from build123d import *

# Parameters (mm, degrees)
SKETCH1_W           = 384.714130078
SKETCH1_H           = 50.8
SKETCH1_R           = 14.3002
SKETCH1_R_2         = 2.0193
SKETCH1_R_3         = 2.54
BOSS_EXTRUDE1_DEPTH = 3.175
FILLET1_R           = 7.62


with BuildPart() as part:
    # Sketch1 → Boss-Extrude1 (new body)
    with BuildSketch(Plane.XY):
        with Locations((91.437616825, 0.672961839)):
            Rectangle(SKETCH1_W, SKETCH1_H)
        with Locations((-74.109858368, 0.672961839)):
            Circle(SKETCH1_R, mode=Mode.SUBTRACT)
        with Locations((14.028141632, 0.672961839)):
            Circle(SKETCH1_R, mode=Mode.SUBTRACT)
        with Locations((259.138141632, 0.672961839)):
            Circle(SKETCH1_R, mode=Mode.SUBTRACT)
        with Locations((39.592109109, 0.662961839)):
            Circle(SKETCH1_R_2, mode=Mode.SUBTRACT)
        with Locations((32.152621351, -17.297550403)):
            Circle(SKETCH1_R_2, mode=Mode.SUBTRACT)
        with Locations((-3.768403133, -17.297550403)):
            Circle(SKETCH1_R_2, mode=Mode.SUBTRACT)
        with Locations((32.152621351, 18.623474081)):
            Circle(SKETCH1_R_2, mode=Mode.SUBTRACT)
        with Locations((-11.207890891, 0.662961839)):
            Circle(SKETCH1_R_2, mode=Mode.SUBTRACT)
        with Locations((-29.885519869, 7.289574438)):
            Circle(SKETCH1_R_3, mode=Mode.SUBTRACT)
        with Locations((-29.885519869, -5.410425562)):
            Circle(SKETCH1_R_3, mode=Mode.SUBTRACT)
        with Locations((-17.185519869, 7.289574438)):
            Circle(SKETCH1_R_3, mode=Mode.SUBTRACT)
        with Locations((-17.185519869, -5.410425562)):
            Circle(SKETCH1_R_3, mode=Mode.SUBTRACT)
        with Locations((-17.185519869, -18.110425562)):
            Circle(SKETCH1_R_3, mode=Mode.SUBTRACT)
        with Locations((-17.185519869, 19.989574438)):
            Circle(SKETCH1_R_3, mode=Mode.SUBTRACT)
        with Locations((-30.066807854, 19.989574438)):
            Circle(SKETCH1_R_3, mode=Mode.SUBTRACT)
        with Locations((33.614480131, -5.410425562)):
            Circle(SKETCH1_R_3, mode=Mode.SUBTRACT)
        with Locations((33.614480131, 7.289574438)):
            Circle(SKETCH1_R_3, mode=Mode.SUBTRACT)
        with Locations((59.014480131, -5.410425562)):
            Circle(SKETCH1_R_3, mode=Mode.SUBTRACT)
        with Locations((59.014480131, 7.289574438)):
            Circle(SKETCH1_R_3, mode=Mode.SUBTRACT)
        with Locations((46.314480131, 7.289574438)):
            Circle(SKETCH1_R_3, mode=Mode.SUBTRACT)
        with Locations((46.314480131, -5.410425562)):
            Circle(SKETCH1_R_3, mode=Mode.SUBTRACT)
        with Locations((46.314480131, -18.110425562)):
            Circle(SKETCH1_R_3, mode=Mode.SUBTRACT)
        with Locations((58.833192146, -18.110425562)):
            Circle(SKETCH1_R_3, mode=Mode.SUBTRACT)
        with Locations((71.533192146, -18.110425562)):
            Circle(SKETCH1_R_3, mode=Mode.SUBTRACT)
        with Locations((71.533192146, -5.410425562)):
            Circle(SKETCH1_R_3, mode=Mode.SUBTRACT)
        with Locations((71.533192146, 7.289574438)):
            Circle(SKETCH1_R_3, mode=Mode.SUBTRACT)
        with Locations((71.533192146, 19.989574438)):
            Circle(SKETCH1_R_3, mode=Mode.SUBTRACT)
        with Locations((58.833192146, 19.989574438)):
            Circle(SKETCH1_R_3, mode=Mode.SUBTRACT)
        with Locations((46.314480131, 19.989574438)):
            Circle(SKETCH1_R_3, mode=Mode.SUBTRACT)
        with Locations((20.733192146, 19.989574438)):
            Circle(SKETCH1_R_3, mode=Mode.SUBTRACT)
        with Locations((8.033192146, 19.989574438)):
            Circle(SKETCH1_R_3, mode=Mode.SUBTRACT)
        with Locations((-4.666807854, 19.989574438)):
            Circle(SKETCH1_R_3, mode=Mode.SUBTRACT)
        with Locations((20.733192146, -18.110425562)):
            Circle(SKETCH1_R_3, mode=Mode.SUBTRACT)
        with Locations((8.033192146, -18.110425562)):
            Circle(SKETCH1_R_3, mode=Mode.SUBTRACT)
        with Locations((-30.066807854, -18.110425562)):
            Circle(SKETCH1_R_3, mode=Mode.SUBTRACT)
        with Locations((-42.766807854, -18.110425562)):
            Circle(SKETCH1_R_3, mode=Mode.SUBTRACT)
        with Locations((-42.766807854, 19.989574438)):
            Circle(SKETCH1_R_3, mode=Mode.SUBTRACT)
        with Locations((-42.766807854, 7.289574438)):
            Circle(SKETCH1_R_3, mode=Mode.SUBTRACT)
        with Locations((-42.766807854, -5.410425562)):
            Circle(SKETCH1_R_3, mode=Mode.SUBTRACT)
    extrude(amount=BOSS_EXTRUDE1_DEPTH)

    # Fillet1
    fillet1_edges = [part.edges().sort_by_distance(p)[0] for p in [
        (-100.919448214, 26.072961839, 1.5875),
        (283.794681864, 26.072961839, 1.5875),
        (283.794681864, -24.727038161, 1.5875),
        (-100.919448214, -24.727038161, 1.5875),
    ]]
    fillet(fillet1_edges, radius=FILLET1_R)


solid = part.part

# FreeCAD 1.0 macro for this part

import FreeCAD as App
import Part
import Sketcher
from FreeCAD import Vector
Q = App.Units.Quantity


def edges_at(feature, points):
    """Names of the edges that pass closest to the given points."""
    edges = feature.Shape.Edges
    near = lambda p: min(range(len(edges)), key=lambda i: edges[i].distToShape(Part.Vertex(*p))[0])
    return sorted({f"Edge{near(p) + 1}" for p in points})


def add_polygon(sketch, points):
    """Adds a closed chain of lines whose ends are joined by coincident constraints."""
    first, n = sketch.GeometryCount, len(points)
    for a, b in zip(points, points[1:] + points[:1]):
        sketch.addGeometry(Part.LineSegment(App.Vector(*a, 0), App.Vector(*b, 0)), False)
    for i in range(n):
        sketch.addConstraint(Sketcher.Constraint("Coincident", first + i, 2, first + (i + 1) % n, 1))

doc = App.newDocument("Part")
body = doc.addObject("PartDesign::Body", "Body")

sketch1 = doc.addObject("Sketcher::SketchObject", "Sketch")
body.addObject(sketch1)
sketch1.AttachmentSupport = (doc.XY_Plane, [""])
sketch1.MapMode = "FlatFace"
add_polygon(sketch1, [(-100.9, 26.1), (-100.9, -24.7), (283.8, -24.7), (283.8, 26.1)])
sketch1.addGeometry(Part.Circle(Vector(-42.8, -18.1, 0), Vector(0, 0, 1), 2.5), False)
sketch1.addGeometry(Part.Circle(Vector(-30.1, -18.1, 0), Vector(0, 0, 1), 2.5), False)
sketch1.addGeometry(Part.Circle(Vector(-17.2, -18.1, 0), Vector(0, 0, 1), 2.5), False)
sketch1.addGeometry(Part.Circle(Vector(-3.8, -17.3, 0), Vector(0, 0, 1), 2), False)
sketch1.addGeometry(Part.Circle(Vector(8, -18.1, 0), Vector(0, 0, 1), 2.5), False)
sketch1.addGeometry(Part.Circle(Vector(20.7, -18.1, 0), Vector(0, 0, 1), 2.5), False)
sketch1.addGeometry(Part.Circle(Vector(46.3, -18.1, 0), Vector(0, 0, 1), 2.5), False)
sketch1.addGeometry(Part.Circle(Vector(32.2, -17.3, 0), Vector(0, 0, 1), 2), False)
sketch1.addGeometry(Part.Circle(Vector(58.8, -18.1, 0), Vector(0, 0, 1), 2.5), False)
sketch1.addGeometry(Part.Circle(Vector(71.5, -18.1, 0), Vector(0, 0, 1), 2.5), False)
sketch1.addGeometry(Part.Circle(Vector(-42.8, -5.4, 0), Vector(0, 0, 1), 2.5), False)
sketch1.addGeometry(Part.Circle(Vector(-29.9, -5.4, 0), Vector(0, 0, 1), 2.5), False)
sketch1.addGeometry(Part.Circle(Vector(-17.2, -5.4, 0), Vector(0, 0, 1), 2.5), False)
sketch1.addGeometry(Part.Circle(Vector(-74.1, 0.7, 0), Vector(0, 0, 1), 14.3), False)
sketch1.addGeometry(Part.Circle(Vector(-11.2, 0.7, 0), Vector(0, 0, 1), 2), False)
sketch1.addGeometry(Part.Circle(Vector(33.6, -5.4, 0), Vector(0, 0, 1), 2.5), False)
sketch1.addGeometry(Part.Circle(Vector(46.3, -5.4, 0), Vector(0, 0, 1), 2.5), False)
sketch1.addGeometry(Part.Circle(Vector(59, -5.4, 0), Vector(0, 0, 1), 2.5), False)
sketch1.addGeometry(Part.Circle(Vector(71.5, -5.4, 0), Vector(0, 0, 1), 2.5), False)
sketch1.addGeometry(Part.Circle(Vector(14, 0.7, 0), Vector(0, 0, 1), 14.3), False)
sketch1.addGeometry(Part.Circle(Vector(39.6, 0.7, 0), Vector(0, 0, 1), 2), False)
sketch1.addGeometry(Part.Circle(Vector(259.1, 0.7, 0), Vector(0, 0, 1), 14.3), False)
sketch1.addGeometry(Part.Circle(Vector(-42.8, 7.3, 0), Vector(0, 0, 1), 2.5), False)
sketch1.addGeometry(Part.Circle(Vector(-29.9, 7.3, 0), Vector(0, 0, 1), 2.5), False)
sketch1.addGeometry(Part.Circle(Vector(-17.2, 7.3, 0), Vector(0, 0, 1), 2.5), False)
sketch1.addGeometry(Part.Circle(Vector(33.6, 7.3, 0), Vector(0, 0, 1), 2.5), False)
sketch1.addGeometry(Part.Circle(Vector(46.3, 7.3, 0), Vector(0, 0, 1), 2.5), False)
sketch1.addGeometry(Part.Circle(Vector(59, 7.3, 0), Vector(0, 0, 1), 2.5), False)
sketch1.addGeometry(Part.Circle(Vector(71.5, 7.3, 0), Vector(0, 0, 1), 2.5), False)
sketch1.addGeometry(Part.Circle(Vector(-42.8, 20, 0), Vector(0, 0, 1), 2.5), False)
sketch1.addGeometry(Part.Circle(Vector(-30.1, 20, 0), Vector(0, 0, 1), 2.5), False)
sketch1.addGeometry(Part.Circle(Vector(-17.2, 20, 0), Vector(0, 0, 1), 2.5), False)
sketch1.addGeometry(Part.Circle(Vector(-4.7, 20, 0), Vector(0, 0, 1), 2.5), False)
sketch1.addGeometry(Part.Circle(Vector(32.2, 18.6, 0), Vector(0, 0, 1), 2), False)
sketch1.addGeometry(Part.Circle(Vector(8, 20, 0), Vector(0, 0, 1), 2.5), False)
sketch1.addGeometry(Part.Circle(Vector(20.7, 20, 0), Vector(0, 0, 1), 2.5), False)
sketch1.addGeometry(Part.Circle(Vector(46.3, 20, 0), Vector(0, 0, 1), 2.5), False)
sketch1.addGeometry(Part.Circle(Vector(58.8, 20, 0), Vector(0, 0, 1), 2.5), False)
sketch1.addGeometry(Part.Circle(Vector(71.5, 20, 0), Vector(0, 0, 1), 2.5), False)
sketch1.addConstraint(Sketcher.Constraint("Vertical", 0))
sketch1.addConstraint(Sketcher.Constraint("Horizontal", 1))
sketch1.addConstraint(Sketcher.Constraint("Vertical", 2))
sketch1.addConstraint(Sketcher.Constraint("Horizontal", 3))
sketch1.addConstraint(Sketcher.Constraint("Equal", 4, 5))
sketch1.addConstraint(Sketcher.Constraint("Equal", 5, 6))
sketch1.addConstraint(Sketcher.Constraint("Equal", 6, 8))
sketch1.addConstraint(Sketcher.Constraint("Equal", 8, 9))
sketch1.addConstraint(Sketcher.Constraint("Equal", 9, 10))
sketch1.addConstraint(Sketcher.Constraint("Equal", 7, 11))
sketch1.addConstraint(Sketcher.Constraint("Equal", 10, 12))
sketch1.addConstraint(Sketcher.Constraint("Equal", 12, 13))
sketch1.addConstraint(Sketcher.Constraint("Equal", 13, 14))
sketch1.addConstraint(Sketcher.Constraint("Equal", 14, 15))
sketch1.addConstraint(Sketcher.Constraint("Equal", 15, 16))
sketch1.addConstraint(Sketcher.Constraint("Equal", 11, 18))
sketch1.addConstraint(Sketcher.Constraint("Equal", 16, 19))
sketch1.addConstraint(Sketcher.Constraint("Equal", 19, 20))
sketch1.addConstraint(Sketcher.Constraint("Equal", 20, 21))
sketch1.addConstraint(Sketcher.Constraint("Equal", 21, 22))
sketch1.addConstraint(Sketcher.Constraint("Equal", 17, 23))
sketch1.addConstraint(Sketcher.Constraint("Equal", 18, 24))
sketch1.addConstraint(Sketcher.Constraint("Equal", 23, 25))
sketch1.addConstraint(Sketcher.Constraint("Equal", 22, 26))
sketch1.addConstraint(Sketcher.Constraint("Equal", 26, 27))
sketch1.addConstraint(Sketcher.Constraint("Equal", 27, 28))
sketch1.addConstraint(Sketcher.Constraint("Equal", 28, 29))
sketch1.addConstraint(Sketcher.Constraint("Equal", 29, 30))
sketch1.addConstraint(Sketcher.Constraint("Equal", 30, 31))
sketch1.addConstraint(Sketcher.Constraint("Equal", 31, 32))
sketch1.addConstraint(Sketcher.Constraint("Equal", 32, 33))
sketch1.addConstraint(Sketcher.Constraint("Equal", 33, 34))
sketch1.addConstraint(Sketcher.Constraint("Equal", 34, 35))
sketch1.addConstraint(Sketcher.Constraint("Equal", 35, 36))
sketch1.addConstraint(Sketcher.Constraint("Equal", 24, 37))
sketch1.addConstraint(Sketcher.Constraint("Equal", 36, 38))
sketch1.addConstraint(Sketcher.Constraint("Equal", 38, 39))
sketch1.addConstraint(Sketcher.Constraint("Equal", 39, 40))
sketch1.addConstraint(Sketcher.Constraint("Equal", 40, 41))
sketch1.addConstraint(Sketcher.Constraint("Equal", 41, 42))
sketch1.addConstraint(Sketcher.Constraint("Horizontal", 4, 3, 5, 3))
sketch1.addConstraint(Sketcher.Constraint("Horizontal", 5, 3, 6, 3))
sketch1.addConstraint(Sketcher.Constraint("Horizontal", 6, 3, 8, 3))
sketch1.addConstraint(Sketcher.Constraint("Horizontal", 8, 3, 9, 3))
sketch1.addConstraint(Sketcher.Constraint("Horizontal", 9, 3, 10, 3))
sketch1.addConstraint(Sketcher.Constraint("Horizontal", 7, 3, 11, 3))
sketch1.addConstraint(Sketcher.Constraint("Horizontal", 10, 3, 12, 3))
sketch1.addConstraint(Sketcher.Constraint("Horizontal", 12, 3, 13, 3))
sketch1.addConstraint(Sketcher.Constraint("Horizontal", 14, 3, 15, 3))
sketch1.addConstraint(Sketcher.Constraint("Horizontal", 15, 3, 16, 3))
sketch1.addConstraint(Sketcher.Constraint("Horizontal", 16, 3, 19, 3))
sketch1.addConstraint(Sketcher.Constraint("Horizontal", 19, 3, 20, 3))
sketch1.addConstraint(Sketcher.Constraint("Horizontal", 20, 3, 21, 3))
sketch1.addConstraint(Sketcher.Constraint("Horizontal", 21, 3, 22, 3))
sketch1.addConstraint(Sketcher.Constraint("Horizontal", 17, 3, 23, 3))
sketch1.addConstraint(Sketcher.Constraint("Horizontal", 18, 3, 24, 3))
sketch1.addConstraint(Sketcher.Constraint("Horizontal", 23, 3, 25, 3))
sketch1.addConstraint(Sketcher.Constraint("Horizontal", 26, 3, 27, 3))
sketch1.addConstraint(Sketcher.Constraint("Horizontal", 27, 3, 28, 3))
sketch1.addConstraint(Sketcher.Constraint("Horizontal", 28, 3, 29, 3))
sketch1.addConstraint(Sketcher.Constraint("Horizontal", 29, 3, 30, 3))
sketch1.addConstraint(Sketcher.Constraint("Horizontal", 30, 3, 31, 3))
sketch1.addConstraint(Sketcher.Constraint("Horizontal", 31, 3, 32, 3))
sketch1.addConstraint(Sketcher.Constraint("Horizontal", 33, 3, 34, 3))
sketch1.addConstraint(Sketcher.Constraint("Horizontal", 34, 3, 35, 3))
sketch1.addConstraint(Sketcher.Constraint("Horizontal", 35, 3, 36, 3))
sketch1.addConstraint(Sketcher.Constraint("Horizontal", 36, 3, 38, 3))
sketch1.addConstraint(Sketcher.Constraint("Horizontal", 38, 3, 39, 3))
sketch1.addConstraint(Sketcher.Constraint("Horizontal", 39, 3, 40, 3))
sketch1.addConstraint(Sketcher.Constraint("Horizontal", 40, 3, 41, 3))
sketch1.addConstraint(Sketcher.Constraint("Horizontal", 41, 3, 42, 3))
sketch1.addConstraint(Sketcher.Constraint("Vertical", 4, 3, 14, 3))
sketch1.addConstraint(Sketcher.Constraint("Vertical", 6, 3, 16, 3))
sketch1.addConstraint(Sketcher.Constraint("Vertical", 10, 3, 20, 3))
sketch1.addConstraint(Sketcher.Constraint("Vertical", 13, 3, 22, 3))
sketch1.addConstraint(Sketcher.Constraint("Vertical", 14, 3, 26, 3))
sketch1.addConstraint(Sketcher.Constraint("Vertical", 15, 3, 27, 3))
sketch1.addConstraint(Sketcher.Constraint("Vertical", 16, 3, 28, 3))
sketch1.addConstraint(Sketcher.Constraint("Vertical", 19, 3, 29, 3))
sketch1.addConstraint(Sketcher.Constraint("Vertical", 20, 3, 30, 3))
sketch1.addConstraint(Sketcher.Constraint("Vertical", 21, 3, 31, 3))
sketch1.addConstraint(Sketcher.Constraint("Vertical", 22, 3, 32, 3))
sketch1.addConstraint(Sketcher.Constraint("Vertical", 26, 3, 33, 3))
sketch1.addConstraint(Sketcher.Constraint("Vertical", 5, 3, 34, 3))
sketch1.addConstraint(Sketcher.Constraint("Vertical", 28, 3, 35, 3))
sketch1.addConstraint(Sketcher.Constraint("Vertical", 11, 3, 37, 3))
sketch1.addConstraint(Sketcher.Constraint("Vertical", 8, 3, 38, 3))
sketch1.addConstraint(Sketcher.Constraint("Vertical", 9, 3, 39, 3))
sketch1.addConstraint(Sketcher.Constraint("Vertical", 30, 3, 40, 3))
sketch1.addConstraint(Sketcher.Constraint("Vertical", 12, 3, 41, 3))
sketch1.addConstraint(Sketcher.Constraint("Vertical", 32, 3, 42, 3))
sketch1.addConstraint(Sketcher.Constraint("Diameter", 4, Q("0.2 in")))
sketch1.addConstraint(Sketcher.Constraint("DistanceY", 0, 2, 0, 1, Q("2 in")))
sketch1.addConstraint(Sketcher.Constraint("Diameter", 7, Q("0.159 in")))
sketch1.addConstraint(Sketcher.Constraint("Diameter", 17, Q("1.126 in")))
sketch1.addConstraint(Sketcher.Constraint("DistanceX", 4, 3, 8, 3, Q("2 in")))
sketch1.addConstraint(Sketcher.Constraint("DistanceX", 5, 3, 9, 3, Q("2 in")))
sketch1.addConstraint(Sketcher.Constraint("DistanceX", 8, 3, 12, 3, Q("2 in")))
sketch1.addConstraint(Sketcher.Constraint("DistanceX", 9, 3, 13, 3, Q("2 in")))
sketch1.addConstraint(Sketcher.Constraint("DistanceX", 19, 3, 21, 3, Q("1 in")))
sketch1.addConstraint(Sketcher.Constraint("DistanceY", 4, 3, 26, 3, Q("1 in")))
sketch1.addConstraint(Sketcher.Constraint("DistanceY", 14, 3, 33, 3, Q("1 in")))
sketch1.addConstraint(Sketcher.Constraint("DistanceX", 34, 3, 36, 3, Q("1 in")))
sketch1.addConstraint(Sketcher.Constraint("DistanceY", 0, 2, 17, 3, Q("1 in")))
sketch1.addConstraint(Sketcher.Constraint("DistanceX", 4, 3, 5, 3, Q("0.5 in")))
sketch1.addConstraint(Sketcher.Constraint("DistanceX", 6, 3, 10, 3, Q("2.5 in")))
sketch1.addConstraint(Sketcher.Constraint("DistanceY", 4, 3, 14, 3, Q("0.5 in")))
sketch1.addConstraint(Sketcher.Constraint("DistanceX", 15, 3, 6, 3, Q("0.5 in")))
sketch1.addConstraint(Sketcher.Constraint("DistanceX", 19, 3, 10, 3, Q("0.5 in")))
sketch1.addConstraint(Sketcher.Constraint("DistanceX", 1, 1, 1, 2, Q("384.71413 mm")))
sketch1.addConstraint(Sketcher.Constraint("DistanceY", 18, 3, 23, 3, Q("0.01 mm")))
sketch1.addConstraint(Sketcher.Constraint("DistanceY", 29, 3, 37, 3, Q("11.3339 mm")))
sketch1.addConstraint(Sketcher.Constraint("DistanceX", 6, 3, -1, 1, Q("17.18552 mm")))
sketch1.addConstraint(Sketcher.Constraint("DistanceY", 7, 3, -1, 1, Q("17.29755 mm")))
sketch1.addConstraint(Sketcher.Constraint("DistanceX", -1, 1, 11, 3, Q("32.152621 mm")))
sketch1.addConstraint(Sketcher.Constraint("DistanceX", 17, 3, -1, 1, Q("74.109858 mm")))
sketch1.addConstraint(Sketcher.Constraint("DistanceY", -1, 1, 17, 3, Q("0.672962 mm")))
sketch1.addConstraint(Sketcher.Constraint("DistanceX", 18, 3, -1, 1, Q("11.207891 mm")))
sketch1.addConstraint(Sketcher.Constraint("DistanceX", -1, 1, 23, 3, Q("14.028142 mm")))
sketch1.addConstraint(Sketcher.Constraint("DistanceX", -1, 1, 24, 3, Q("39.592109 mm")))
sketch1.addConstraint(Sketcher.Constraint("DistanceX", -1, 1, 25, 3, Q("259.138142 mm")))
sketch1.addConstraint(Sketcher.Constraint("DistanceX", 0, 2, -1, 1, Q("100.919448 mm")))
sketch1.addConstraint(Sketcher.Constraint("DistanceX", 9, 3, 11, 3, Q("11.419429 mm")))
sketch1.addConstraint(Sketcher.Constraint("DistanceY", 4, 3, -1, 1, Q("18.110426 mm")))
sketch1.addConstraint(Sketcher.Constraint("DistanceX", 7, 3, -1, 1, Q("3.768403 mm")))
pad1 = doc.addObject("PartDesign::Pad", "Pad")
body.addObject(pad1)
pad1.Profile = sketch1
pad1.Length = Q("0.125 in")
doc.recompute()

fillet = doc.addObject("PartDesign::Fillet", "Fillet")
body.addObject(fillet)
fillet.Base = (pad1, edges_at(pad1, [
    (-100.919, 26.073, 1.587),
    (283.795, 26.073, 1.587),
    (283.795, -24.727, 1.587),
    (-100.919, -24.727, 1.587),
]))
fillet.Radius = Q("0.3 in")

doc.recompute()
